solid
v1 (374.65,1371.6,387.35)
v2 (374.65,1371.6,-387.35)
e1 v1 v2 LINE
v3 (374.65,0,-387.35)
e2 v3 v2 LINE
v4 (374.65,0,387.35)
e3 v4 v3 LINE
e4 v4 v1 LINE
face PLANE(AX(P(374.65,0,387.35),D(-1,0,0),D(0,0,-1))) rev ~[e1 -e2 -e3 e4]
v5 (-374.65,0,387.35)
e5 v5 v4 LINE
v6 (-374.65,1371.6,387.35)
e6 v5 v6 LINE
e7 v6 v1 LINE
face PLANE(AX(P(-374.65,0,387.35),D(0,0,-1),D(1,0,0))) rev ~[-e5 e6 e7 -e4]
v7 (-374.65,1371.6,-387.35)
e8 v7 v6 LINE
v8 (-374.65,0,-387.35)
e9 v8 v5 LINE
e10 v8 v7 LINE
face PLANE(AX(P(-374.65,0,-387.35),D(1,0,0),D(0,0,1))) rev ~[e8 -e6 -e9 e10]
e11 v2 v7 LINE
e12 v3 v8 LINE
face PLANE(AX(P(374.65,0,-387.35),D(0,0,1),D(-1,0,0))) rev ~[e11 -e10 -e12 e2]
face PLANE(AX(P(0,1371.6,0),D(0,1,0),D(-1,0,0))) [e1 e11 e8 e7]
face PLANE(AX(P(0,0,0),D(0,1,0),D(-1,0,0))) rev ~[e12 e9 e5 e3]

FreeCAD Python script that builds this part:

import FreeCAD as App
import Part
import Sketcher

V = App.Vector
Q = App.Units.Quantity


def add_polygon(sketch, points):
    """Adds a closed chain of lines whose ends are joined by coincident constraints."""
    first, n = sketch.GeometryCount, len(points)
    for a, b in zip(points, points[1:] + points[:1]):
        sketch.addGeometry(Part.LineSegment(App.Vector(*a, 0), App.Vector(*b, 0)), False)
    for i in range(n):
        sketch.addConstraint(Sketcher.Constraint("Coincident", first + i, 2, first + (i + 1) % n, 1))

doc = App.newDocument("Part")
body = doc.addObject("PartDesign::Body", "Body")

sketch1 = doc.addObject("Sketcher::SketchObject", "Sketch")
body.addObject(sketch1)
sketch1.AttachmentSupport = (doc.XZ_Plane, [""])
sketch1.MapMode = "FlatFace"
add_polygon(sketch1, [(-375, -387), (-375, 387), (375, 387), (375, -387)])
sketch1.addConstraint([
    Sketcher.Constraint("Vertical", 0),
    Sketcher.Constraint("Horizontal", 1),
    Sketcher.Constraint("Vertical", 2),
    Sketcher.Constraint("Horizontal", 3),
    Sketcher.Constraint("Symmetric", 0, 2, 2, 2, -1, 1),
    Sketcher.Constraint("DistanceX", 1, 1, 1, 2, Q("29.5 in")),
    Sketcher.Constraint("DistanceY", 0, 1, 0, 2, Q("30.5 in")),
])
pad1 = doc.addObject("PartDesign::Pad", "Pad")
body.addObject(pad1)
pad1.Profile = sketch1
pad1.Length = Q("54 in")
pad1.Reversed = True

doc.recompute()
